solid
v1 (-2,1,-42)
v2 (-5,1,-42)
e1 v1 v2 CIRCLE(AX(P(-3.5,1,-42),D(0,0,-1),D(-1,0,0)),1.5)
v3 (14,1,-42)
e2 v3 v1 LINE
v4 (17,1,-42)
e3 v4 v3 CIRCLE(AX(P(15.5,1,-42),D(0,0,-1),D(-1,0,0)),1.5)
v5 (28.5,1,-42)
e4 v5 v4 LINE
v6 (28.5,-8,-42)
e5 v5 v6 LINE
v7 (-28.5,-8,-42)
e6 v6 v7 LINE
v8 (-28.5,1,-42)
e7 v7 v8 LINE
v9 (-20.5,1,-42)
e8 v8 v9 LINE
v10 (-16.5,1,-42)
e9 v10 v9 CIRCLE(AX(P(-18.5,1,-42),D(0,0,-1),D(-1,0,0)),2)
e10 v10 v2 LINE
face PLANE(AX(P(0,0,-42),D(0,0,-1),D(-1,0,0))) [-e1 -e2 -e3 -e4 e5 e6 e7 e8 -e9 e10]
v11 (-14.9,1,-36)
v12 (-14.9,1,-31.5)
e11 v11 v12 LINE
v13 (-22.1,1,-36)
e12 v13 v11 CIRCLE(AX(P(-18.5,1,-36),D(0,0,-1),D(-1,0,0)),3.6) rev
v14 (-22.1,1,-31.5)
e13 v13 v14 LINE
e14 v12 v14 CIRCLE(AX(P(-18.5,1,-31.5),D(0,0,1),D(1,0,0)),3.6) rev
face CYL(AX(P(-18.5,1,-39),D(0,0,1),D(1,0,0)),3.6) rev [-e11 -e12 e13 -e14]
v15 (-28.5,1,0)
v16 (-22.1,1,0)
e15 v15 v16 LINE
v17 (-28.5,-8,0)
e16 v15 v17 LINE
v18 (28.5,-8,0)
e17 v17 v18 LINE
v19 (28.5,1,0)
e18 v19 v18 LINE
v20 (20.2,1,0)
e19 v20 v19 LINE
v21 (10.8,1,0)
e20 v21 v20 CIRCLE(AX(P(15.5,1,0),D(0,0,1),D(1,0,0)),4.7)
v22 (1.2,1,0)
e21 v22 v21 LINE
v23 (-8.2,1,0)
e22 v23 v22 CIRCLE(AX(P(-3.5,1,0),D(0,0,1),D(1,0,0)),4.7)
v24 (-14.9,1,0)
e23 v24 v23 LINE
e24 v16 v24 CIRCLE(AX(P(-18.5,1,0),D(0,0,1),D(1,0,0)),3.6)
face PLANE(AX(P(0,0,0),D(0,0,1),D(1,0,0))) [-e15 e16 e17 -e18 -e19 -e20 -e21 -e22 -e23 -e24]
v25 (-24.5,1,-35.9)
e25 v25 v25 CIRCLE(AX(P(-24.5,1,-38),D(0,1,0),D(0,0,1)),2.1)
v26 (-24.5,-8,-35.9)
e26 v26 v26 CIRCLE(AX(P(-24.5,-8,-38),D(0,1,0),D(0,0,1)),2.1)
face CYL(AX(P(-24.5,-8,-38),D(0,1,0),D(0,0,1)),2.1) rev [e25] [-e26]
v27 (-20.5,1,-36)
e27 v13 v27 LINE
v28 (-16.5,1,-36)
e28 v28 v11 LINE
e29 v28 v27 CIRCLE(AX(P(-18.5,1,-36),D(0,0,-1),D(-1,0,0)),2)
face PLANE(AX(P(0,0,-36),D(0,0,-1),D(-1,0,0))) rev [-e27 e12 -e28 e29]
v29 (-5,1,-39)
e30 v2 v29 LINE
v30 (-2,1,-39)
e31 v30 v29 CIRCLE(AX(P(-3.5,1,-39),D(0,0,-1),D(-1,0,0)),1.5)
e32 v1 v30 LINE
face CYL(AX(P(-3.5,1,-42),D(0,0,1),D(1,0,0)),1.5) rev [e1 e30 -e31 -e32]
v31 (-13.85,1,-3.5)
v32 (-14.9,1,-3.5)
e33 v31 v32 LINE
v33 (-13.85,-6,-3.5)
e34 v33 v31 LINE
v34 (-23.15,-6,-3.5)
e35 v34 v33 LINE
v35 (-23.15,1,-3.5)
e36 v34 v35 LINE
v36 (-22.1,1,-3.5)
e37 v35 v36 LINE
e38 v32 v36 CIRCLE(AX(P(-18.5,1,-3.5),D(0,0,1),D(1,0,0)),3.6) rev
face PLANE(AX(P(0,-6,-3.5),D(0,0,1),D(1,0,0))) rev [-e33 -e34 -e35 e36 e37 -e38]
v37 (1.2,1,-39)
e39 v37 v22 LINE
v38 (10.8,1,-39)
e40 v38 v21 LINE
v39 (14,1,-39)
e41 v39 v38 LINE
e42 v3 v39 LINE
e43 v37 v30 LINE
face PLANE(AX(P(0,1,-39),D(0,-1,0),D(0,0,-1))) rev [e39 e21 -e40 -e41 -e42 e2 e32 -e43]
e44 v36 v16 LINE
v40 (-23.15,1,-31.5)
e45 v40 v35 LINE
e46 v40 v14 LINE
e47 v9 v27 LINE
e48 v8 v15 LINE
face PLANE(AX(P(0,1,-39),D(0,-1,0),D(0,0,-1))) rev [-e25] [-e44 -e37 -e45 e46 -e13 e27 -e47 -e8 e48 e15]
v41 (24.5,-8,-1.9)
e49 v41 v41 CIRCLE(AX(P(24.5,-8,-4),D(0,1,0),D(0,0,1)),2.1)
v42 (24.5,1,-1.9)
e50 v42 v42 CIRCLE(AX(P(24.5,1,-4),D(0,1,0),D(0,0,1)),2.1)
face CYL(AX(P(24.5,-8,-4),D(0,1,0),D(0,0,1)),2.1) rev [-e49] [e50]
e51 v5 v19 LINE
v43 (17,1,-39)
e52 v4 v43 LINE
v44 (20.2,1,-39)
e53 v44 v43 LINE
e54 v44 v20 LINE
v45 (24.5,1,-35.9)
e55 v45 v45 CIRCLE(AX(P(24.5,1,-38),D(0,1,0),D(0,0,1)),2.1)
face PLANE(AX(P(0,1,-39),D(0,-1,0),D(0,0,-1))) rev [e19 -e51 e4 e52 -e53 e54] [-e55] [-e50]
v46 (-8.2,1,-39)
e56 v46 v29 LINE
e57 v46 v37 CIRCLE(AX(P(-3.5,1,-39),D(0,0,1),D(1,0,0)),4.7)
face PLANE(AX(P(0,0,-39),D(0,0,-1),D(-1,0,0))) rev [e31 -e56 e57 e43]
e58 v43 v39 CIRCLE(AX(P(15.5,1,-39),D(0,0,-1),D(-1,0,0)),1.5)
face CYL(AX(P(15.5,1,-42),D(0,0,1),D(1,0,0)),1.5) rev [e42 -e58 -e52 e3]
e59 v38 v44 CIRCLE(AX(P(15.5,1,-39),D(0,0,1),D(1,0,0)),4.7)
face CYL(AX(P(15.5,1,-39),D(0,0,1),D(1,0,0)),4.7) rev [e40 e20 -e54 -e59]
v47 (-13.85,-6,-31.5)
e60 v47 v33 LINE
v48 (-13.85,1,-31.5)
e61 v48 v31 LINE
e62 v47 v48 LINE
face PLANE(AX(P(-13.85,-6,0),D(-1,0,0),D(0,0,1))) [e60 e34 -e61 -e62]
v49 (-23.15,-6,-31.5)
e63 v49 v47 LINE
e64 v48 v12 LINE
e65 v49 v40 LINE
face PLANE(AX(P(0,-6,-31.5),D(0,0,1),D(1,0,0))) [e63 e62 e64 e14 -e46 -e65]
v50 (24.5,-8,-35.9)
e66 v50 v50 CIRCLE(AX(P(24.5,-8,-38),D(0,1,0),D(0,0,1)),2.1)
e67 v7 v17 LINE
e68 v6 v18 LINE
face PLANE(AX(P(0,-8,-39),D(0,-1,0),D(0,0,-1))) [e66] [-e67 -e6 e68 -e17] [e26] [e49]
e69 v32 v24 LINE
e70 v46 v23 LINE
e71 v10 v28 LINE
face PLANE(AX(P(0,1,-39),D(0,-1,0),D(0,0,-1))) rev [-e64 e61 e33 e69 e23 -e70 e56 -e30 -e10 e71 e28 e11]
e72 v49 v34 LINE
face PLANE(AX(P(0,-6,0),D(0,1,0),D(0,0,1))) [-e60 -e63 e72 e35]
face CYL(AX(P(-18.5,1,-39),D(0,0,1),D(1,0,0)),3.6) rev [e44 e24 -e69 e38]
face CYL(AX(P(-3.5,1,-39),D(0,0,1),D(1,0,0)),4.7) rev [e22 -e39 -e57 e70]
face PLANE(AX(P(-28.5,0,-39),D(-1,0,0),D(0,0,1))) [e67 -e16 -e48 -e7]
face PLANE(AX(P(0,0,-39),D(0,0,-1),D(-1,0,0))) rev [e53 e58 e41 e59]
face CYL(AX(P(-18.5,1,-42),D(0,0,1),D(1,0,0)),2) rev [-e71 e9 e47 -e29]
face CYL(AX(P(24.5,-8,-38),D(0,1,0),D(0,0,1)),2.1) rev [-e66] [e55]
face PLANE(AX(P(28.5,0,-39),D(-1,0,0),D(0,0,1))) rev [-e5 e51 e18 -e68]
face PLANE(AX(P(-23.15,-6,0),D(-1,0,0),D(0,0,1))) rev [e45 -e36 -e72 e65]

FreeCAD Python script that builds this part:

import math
import FreeCAD as App
import Part
import Sketcher
Q = App.Units.Quantity


def add_polygon(sketch, points):
    """Adds a closed chain of lines whose ends are joined by coincident constraints."""
    first, n = sketch.GeometryCount, len(points)
    for a, b in zip(points, points[1:] + points[:1]):
        sketch.addGeometry(Part.LineSegment(App.Vector(*a, 0), App.Vector(*b, 0)), False)
    for i in range(n):
        sketch.addConstraint(Sketcher.Constraint("Coincident", first + i, 2, first + (i + 1) % n, 1))

doc = App.newDocument("Part")
body = doc.addObject("PartDesign::Body", "Body")

# Sketch on XY plane
sketch1 = body.newObject("Sketcher::SketchObject", "Sketch")
sketch1.AttachmentSupport = (doc.getObject("XY_Plane"), [""])
sketch1.MapMode = "FlatFace"
sketch1.addGeometry(Part.LineSegment(App.Vector(-22.1, 1, 0), App.Vector(-28.5, 1, 0)), False)
sketch1.addGeometry(Part.LineSegment(App.Vector(-28.5, 1, 0), App.Vector(-28.5, -8, 0)), False)
sketch1.addGeometry(Part.LineSegment(App.Vector(-28.5, -8, 0), App.Vector(28.5, -8, 0)), False)
sketch1.addGeometry(Part.LineSegment(App.Vector(28.5, -8, 0), App.Vector(28.5, 1, 0)), False)
sketch1.addGeometry(Part.LineSegment(App.Vector(28.5, 1, 0), App.Vector(20.2, 1, 0)), False)
sketch1.addGeometry(Part.ArcOfCircle(Part.Circle(App.Vector(15.5, 1, 0), App.Vector(0, 0, 1), 4.7), math.radians(180), math.radians(360)), False)
sketch1.addGeometry(Part.LineSegment(App.Vector(10.8, 1, 0), App.Vector(1.2, 1, 0)), False)
sketch1.addGeometry(Part.ArcOfCircle(Part.Circle(App.Vector(-3.5, 1, 0), App.Vector(0, 0, 1), 4.7), math.radians(180), math.radians(360)), False)
sketch1.addGeometry(Part.LineSegment(App.Vector(-8.2, 1, 0), App.Vector(-14.9, 1, 0)), False)
sketch1.addGeometry(Part.ArcOfCircle(Part.Circle(App.Vector(-18.5, 1, 0), App.Vector(0, 0, 1), 3.6), math.radians(180), math.radians(360)), False)
sketch1.addConstraint(Sketcher.Constraint("Coincident", 0, 2, 1, 1))
sketch1.addConstraint(Sketcher.Constraint("Coincident", 1, 2, 2, 1))
sketch1.addConstraint(Sketcher.Constraint("Coincident", 2, 2, 3, 1))
sketch1.addConstraint(Sketcher.Constraint("Coincident", 3, 2, 4, 1))
sketch1.addConstraint(Sketcher.Constraint("Coincident", 4, 2, 5, 2))
sketch1.addConstraint(Sketcher.Constraint("Coincident", 5, 1, 6, 1))
sketch1.addConstraint(Sketcher.Constraint("Coincident", 6, 2, 7, 2))
sketch1.addConstraint(Sketcher.Constraint("Coincident", 7, 1, 8, 1))
sketch1.addConstraint(Sketcher.Constraint("Coincident", 8, 2, 9, 2))
sketch1.addConstraint(Sketcher.Constraint("Coincident", 9, 1, 0, 1))
sketch1.addConstraint(Sketcher.Constraint("Horizontal", 0))
sketch1.addConstraint(Sketcher.Constraint("Vertical", 1))
sketch1.addConstraint(Sketcher.Constraint("Horizontal", 2))
sketch1.addConstraint(Sketcher.Constraint("Vertical", 3))
sketch1.addConstraint(Sketcher.Constraint("Horizontal", 4))
sketch1.addConstraint(Sketcher.Constraint("Horizontal", 6))
sketch1.addConstraint(Sketcher.Constraint("Horizontal", 8))
sketch1.addConstraint(Sketcher.Constraint("Equal", 5, 7))
sketch1.addConstraint(Sketcher.Constraint("Symmetric", 0, 2, 3, 2, -2))
sketch1.addConstraint(Sketcher.Constraint("Horizontal", 5, 3, 7, 3))
sketch1.addConstraint(Sketcher.Constraint("Horizontal", 7, 3, 9, 3))
sketch1.addConstraint(Sketcher.Constraint("Horizontal", 9, 3, 0, 2))
sketch1.addConstraint(Sketcher.Constraint("Horizontal", 4, 2, 5, 1))
sketch1.addConstraint(Sketcher.Constraint("Horizontal", 6, 2, 7, 1))
sketch1.addConstraint(Sketcher.Constraint("Radius", 5, Q("4.7 mm")))
sketch1.addConstraint(Sketcher.Constraint("Radius", 9, Q("3.6 mm")))
sketch1.addConstraint(Sketcher.Constraint("DistanceX", 2, 1, 2, 2, Q("57 mm")))
sketch1.addConstraint(Sketcher.Constraint("DistanceY", 1, 2, 1, 1, Q("9 mm")))
sketch1.addConstraint(Sketcher.Constraint("DistanceX", 0, 2, 0, 1, Q("6.4 mm")))
sketch1.addConstraint(Sketcher.Constraint("DistanceX", 4, 2, 4, 1, Q("8.3 mm")))
sketch1.addConstraint(Sketcher.Constraint("DistanceX", 6, 2, 6, 1, Q("9.6 mm")))
sketch1.addConstraint(Sketcher.Constraint("DistanceY", -1, 1, 5, 3, Q("1 mm")))
pad1 = body.newObject("PartDesign::Pad", "Pad")
pad1.Profile = sketch1
pad1.Length = 39
pad1.Reversed = True

# Sketch on XZ plane
sketch2 = body.newObject("Sketcher::SketchObject", "Sketch001")
sketch2.AttachmentSupport = (doc.getObject("XZ_Plane"), [""])
sketch2.MapMode = "FlatFace"
sketch2.AttachmentOffset = App.Placement(App.Vector(0, 0, -1), App.Rotation())
add_polygon(sketch2, [(-23, -32), (-23, -4), (-14, -4), (-14, -32)])  # lines 0-3
sketch2.addConstraint(Sketcher.Constraint("Vertical", 0))
sketch2.addConstraint(Sketcher.Constraint("Horizontal", 1))
sketch2.addConstraint(Sketcher.Constraint("Vertical", 2))
sketch2.addConstraint(Sketcher.Constraint("Horizontal", 3))
sketch2.addConstraint(Sketcher.Constraint("DistanceY", 0, 1, 0, 2, Q("28 mm")))
sketch2.addConstraint(Sketcher.Constraint("DistanceX", 1, 1, 1, 2, Q("9.3 mm")))
sketch2.addConstraint(Sketcher.Constraint("DistanceY", 0, 2, -1, 1, Q("3.5 mm")))
sketch2.addConstraint(Sketcher.Constraint("DistanceX", 0, 2, -1, 1, Q("23.15 mm")))
pocket1 = body.newObject("PartDesign::Pocket", "Pocket")
pocket1.Profile = sketch2
pocket1.Length = 7
pocket1.Reversed = True

# Sketch on XY plane
sketch3 = body.newObject("Sketcher::SketchObject", "Sketch002")
sketch3.AttachmentSupport = (doc.getObject("XY_Plane"), [""])
sketch3.MapMode = "FlatFace"
sketch3.AttachmentOffset = App.Placement(App.Vector(0, 0, -39), App.Rotation())
sketch3.addGeometry(Part.LineSegment(App.Vector(28.5, 1, 0), App.Vector(28.5, -8, 0)), False)
sketch3.addGeometry(Part.LineSegment(App.Vector(28.5, -8, 0), App.Vector(-13.5, -8, 0)), False)
sketch3.addGeometry(Part.LineSegment(App.Vector(-13.5, -8, 0), App.Vector(-13.5, 1, 0)), False)
sketch3.addGeometry(Part.LineSegment(App.Vector(-13.5, 1, 0), App.Vector(-5, 1, 0)), False)
sketch3.addGeometry(Part.ArcOfCircle(Part.Circle(App.Vector(-3.5, 1, 0), App.Vector(0, 0, 1), 1.5), math.radians(180), math.radians(360)), False)
sketch3.addGeometry(Part.LineSegment(App.Vector(-2, 1, 0), App.Vector(14, 1, 0)), False)
sketch3.addGeometry(Part.ArcOfCircle(Part.Circle(App.Vector(15.5, 1, 0), App.Vector(0, 0, 1), 1.5), math.radians(180), math.radians(360)), False)
sketch3.addGeometry(Part.LineSegment(App.Vector(17, 1, 0), App.Vector(28.5, 1, 0)), False)
sketch3.addConstraint(Sketcher.Constraint("Coincident", 0, 2, 1, 1))
sketch3.addConstraint(Sketcher.Constraint("Coincident", 1, 2, 2, 1))
sketch3.addConstraint(Sketcher.Constraint("Coincident", 2, 2, 3, 1))
sketch3.addConstraint(Sketcher.Constraint("Coincident", 3, 2, 4, 1))
sketch3.addConstraint(Sketcher.Constraint("Coincident", 4, 2, 5, 1))
sketch3.addConstraint(Sketcher.Constraint("Coincident", 5, 2, 6, 1))
sketch3.addConstraint(Sketcher.Constraint("Coincident", 6, 2, 7, 1))
sketch3.addConstraint(Sketcher.Constraint("Coincident", 7, 2, 0, 1))
sketch3.addConstraint(Sketcher.Constraint("Vertical", 0))
sketch3.addConstraint(Sketcher.Constraint("Horizontal", 1))
sketch3.addConstraint(Sketcher.Constraint("Vertical", 2))
sketch3.addConstraint(Sketcher.Constraint("Horizontal", 3))
sketch3.addConstraint(Sketcher.Constraint("Horizontal", 5))
sketch3.addConstraint(Sketcher.Constraint("Horizontal", 7))
sketch3.addConstraint(Sketcher.Constraint("Equal", 4, 6))
sketch3.addConstraint(Sketcher.Constraint("Horizontal", 4, 3, 6, 3))
sketch3.addConstraint(Sketcher.Constraint("Horizontal", 6, 3, 2, 2))
sketch3.addConstraint(Sketcher.Constraint("Horizontal", 3, 2, 4, 2))
sketch3.addConstraint(Sketcher.Constraint("Horizontal", 5, 2, 6, 2))
sketch3.addConstraint(Sketcher.Constraint("Radius", 4, Q("1.5 mm")))
sketch3.addConstraint(Sketcher.Constraint("DistanceX", 1, 2, 1, 1, Q("42 mm")))
sketch3.addConstraint(Sketcher.Constraint("DistanceX", 5, 1, 5, 2, Q("16 mm")))
sketch3.addConstraint(Sketcher.Constraint("DistanceY", 0, 2, 0, 1, Q("9 mm")))
sketch3.addConstraint(Sketcher.Constraint("DistanceX", 3, 1, 3, 2, Q("8.5 mm")))
sketch3.addConstraint(Sketcher.Constraint("DistanceY", -1, 1, 4, 3, Q("1 mm")))
sketch3.addConstraint(Sketcher.Constraint("DistanceX", 3, 2, -1, 1, Q("5 mm")))
pad2 = body.newObject("PartDesign::Pad", "Pad001")
pad2.Profile = sketch3
pad2.Length = 3
pad2.Reversed = True

# Sketch on XY plane
sketch4 = body.newObject("Sketcher::SketchObject", "Sketch003")
sketch4.AttachmentSupport = (doc.getObject("XY_Plane"), [""])
sketch4.MapMode = "FlatFace"
sketch4.AttachmentOffset = App.Placement(App.Vector(0, 0, -39), App.Rotation())
sketch4.addGeometry(Part.LineSegment(App.Vector(-13.5, 1, 0), App.Vector(-13.5, -8, 0)), False)
sketch4.addGeometry(Part.LineSegment(App.Vector(-13.5, -8, 0), App.Vector(-28.5, -8, 0)), False)
sketch4.addGeometry(Part.LineSegment(App.Vector(-28.5, -8, 0), App.Vector(-28.5, 1, 0)), False)
sketch4.addGeometry(Part.LineSegment(App.Vector(-28.5, 1, 0), App.Vector(-20.5, 1, 0)), False)
sketch4.addGeometry(Part.ArcOfCircle(Part.Circle(App.Vector(-18.5, 1, 0), App.Vector(0, 0, 1), 2), math.radians(180), math.radians(360)), False)
sketch4.addGeometry(Part.LineSegment(App.Vector(-16.5, 1, 0), App.Vector(-13.5, 1, 0)), False)
sketch4.addConstraint(Sketcher.Constraint("Coincident", 0, 2, 1, 1))
sketch4.addConstraint(Sketcher.Constraint("Coincident", 1, 2, 2, 1))
sketch4.addConstraint(Sketcher.Constraint("Coincident", 2, 2, 3, 1))
sketch4.addConstraint(Sketcher.Constraint("Coincident", 3, 2, 4, 1))
sketch4.addConstraint(Sketcher.Constraint("Coincident", 4, 2, 5, 1))
sketch4.addConstraint(Sketcher.Constraint("Coincident", 5, 2, 0, 1))
sketch4.addConstraint(Sketcher.Constraint("Vertical", 0))
sketch4.addConstraint(Sketcher.Constraint("Horizontal", 1))
sketch4.addConstraint(Sketcher.Constraint("Vertical", 2))
sketch4.addConstraint(Sketcher.Constraint("Horizontal", 3))
sketch4.addConstraint(Sketcher.Constraint("Horizontal", 5))
sketch4.addConstraint(Sketcher.Constraint("Horizontal", 4, 3, 2, 2))
sketch4.addConstraint(Sketcher.Constraint("Horizontal", 3, 2, 4, 2))
sketch4.addConstraint(Sketcher.Constraint("Radius", 4, Q("2 mm")))
sketch4.addConstraint(Sketcher.Constraint("DistanceX", 1, 2, 1, 1, Q("15 mm")))
sketch4.addConstraint(Sketcher.Constraint("DistanceX", 3, 1, 3, 2, Q("8 mm")))
sketch4.addConstraint(Sketcher.Constraint("DistanceY", 0, 2, 0, 1, Q("9 mm")))
sketch4.addConstraint(Sketcher.Constraint("DistanceY", -1, 1, 4, 3, Q("1 mm")))
sketch4.addConstraint(Sketcher.Constraint("DistanceX", 4, 3, -1, 1, Q("18.5 mm")))
pad3 = body.newObject("PartDesign::Pad", "Pad002")
pad3.Profile = sketch4
pad3.Length = 6
pad3.Midplane = True

# Sketch on XZ plane
sketch5 = body.newObject("Sketcher::SketchObject", "Sketch004")
sketch5.AttachmentSupport = (doc.getObject("XZ_Plane"), [""])
sketch5.MapMode = "FlatFace"
sketch5.AttachmentOffset = App.Placement(App.Vector(0, 0, -1), App.Rotation())
sketch5.addGeometry(Part.Circle(App.Vector(-24.5, -38, 0), App.Vector(0, 0, 1), 2.1), False)
sketch5.addGeometry(Part.Circle(App.Vector(24.5, -38, 0), App.Vector(0, 0, 1), 2.1), False)
sketch5.addGeometry(Part.Circle(App.Vector(24.5, -4, 0), App.Vector(0, 0, 1), 2.1), False)
sketch5.addConstraint(Sketcher.Constraint("Equal", 0, 1))
sketch5.addConstraint(Sketcher.Constraint("Equal", 1, 2))
sketch5.addConstraint(Sketcher.Constraint("Symmetric", 0, 3, 1, 3, -2))
sketch5.addConstraint(Sketcher.Constraint("Vertical", 1, 3, 2, 3))
sketch5.addConstraint(Sketcher.Constraint("Diameter", 0, Q("4.2 mm")))
sketch5.addConstraint(Sketcher.Constraint("DistanceY", 0, 3, -1, 1, Q("38 mm")))
sketch5.addConstraint(Sketcher.Constraint("DistanceY", 2, 3, -1, 1, Q("4 mm")))
sketch5.addConstraint(Sketcher.Constraint("DistanceX", 0, 3, 1, 3, Q("49 mm")))
pocket2 = body.newObject("PartDesign::Pocket", "Pocket001")
pocket2.Profile = sketch5
pocket2.Type = "ThroughAll"
pocket2.Reversed = True

doc.recompute()
